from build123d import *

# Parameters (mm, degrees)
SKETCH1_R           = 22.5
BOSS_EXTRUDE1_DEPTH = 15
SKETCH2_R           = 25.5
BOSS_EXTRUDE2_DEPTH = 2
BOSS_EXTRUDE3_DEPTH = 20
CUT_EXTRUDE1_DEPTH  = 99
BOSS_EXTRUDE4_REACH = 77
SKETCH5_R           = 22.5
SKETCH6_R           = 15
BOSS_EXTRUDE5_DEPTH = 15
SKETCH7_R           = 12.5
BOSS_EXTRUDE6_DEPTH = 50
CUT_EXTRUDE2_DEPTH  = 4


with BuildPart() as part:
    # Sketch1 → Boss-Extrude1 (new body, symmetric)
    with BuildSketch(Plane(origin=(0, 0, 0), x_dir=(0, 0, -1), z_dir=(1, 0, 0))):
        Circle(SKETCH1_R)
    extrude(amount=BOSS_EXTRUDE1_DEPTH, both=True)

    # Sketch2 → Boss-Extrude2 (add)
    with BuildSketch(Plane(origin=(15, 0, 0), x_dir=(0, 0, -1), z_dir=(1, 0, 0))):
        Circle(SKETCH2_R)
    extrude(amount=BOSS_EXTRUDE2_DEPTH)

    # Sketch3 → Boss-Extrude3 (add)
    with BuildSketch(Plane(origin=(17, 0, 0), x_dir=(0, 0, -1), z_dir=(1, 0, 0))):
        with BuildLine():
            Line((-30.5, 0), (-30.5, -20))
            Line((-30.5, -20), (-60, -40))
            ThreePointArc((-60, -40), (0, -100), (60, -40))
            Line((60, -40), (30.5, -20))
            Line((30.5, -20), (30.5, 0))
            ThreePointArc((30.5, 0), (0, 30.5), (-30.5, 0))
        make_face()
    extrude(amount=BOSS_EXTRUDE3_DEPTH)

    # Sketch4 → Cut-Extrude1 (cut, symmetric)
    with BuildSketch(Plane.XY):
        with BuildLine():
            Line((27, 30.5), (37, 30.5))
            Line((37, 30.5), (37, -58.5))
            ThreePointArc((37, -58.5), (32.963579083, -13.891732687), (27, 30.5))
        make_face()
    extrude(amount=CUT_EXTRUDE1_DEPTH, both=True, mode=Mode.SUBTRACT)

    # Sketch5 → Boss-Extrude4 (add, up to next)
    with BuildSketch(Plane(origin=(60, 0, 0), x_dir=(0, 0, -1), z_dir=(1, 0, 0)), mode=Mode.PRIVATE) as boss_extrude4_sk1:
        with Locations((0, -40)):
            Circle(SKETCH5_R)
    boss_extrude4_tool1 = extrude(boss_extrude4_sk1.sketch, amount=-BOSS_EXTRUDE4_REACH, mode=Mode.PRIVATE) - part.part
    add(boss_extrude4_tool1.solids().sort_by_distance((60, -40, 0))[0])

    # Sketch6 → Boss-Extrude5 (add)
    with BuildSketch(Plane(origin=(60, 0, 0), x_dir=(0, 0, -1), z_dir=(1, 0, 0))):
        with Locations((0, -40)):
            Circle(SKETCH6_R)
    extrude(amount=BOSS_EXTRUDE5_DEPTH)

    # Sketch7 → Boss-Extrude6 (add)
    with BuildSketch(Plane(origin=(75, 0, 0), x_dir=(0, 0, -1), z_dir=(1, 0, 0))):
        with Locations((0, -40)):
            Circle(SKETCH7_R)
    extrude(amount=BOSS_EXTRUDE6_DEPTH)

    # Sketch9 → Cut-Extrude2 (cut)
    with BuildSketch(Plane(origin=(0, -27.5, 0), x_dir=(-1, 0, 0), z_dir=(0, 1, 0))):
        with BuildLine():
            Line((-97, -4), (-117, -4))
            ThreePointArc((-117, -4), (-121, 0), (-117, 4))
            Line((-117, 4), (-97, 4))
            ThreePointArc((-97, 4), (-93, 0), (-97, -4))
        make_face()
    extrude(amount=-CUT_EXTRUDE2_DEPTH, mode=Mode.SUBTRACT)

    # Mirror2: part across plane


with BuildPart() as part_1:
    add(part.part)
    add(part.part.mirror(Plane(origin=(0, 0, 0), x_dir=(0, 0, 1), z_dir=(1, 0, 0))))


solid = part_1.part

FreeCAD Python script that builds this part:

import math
import FreeCAD as App
import Part
import Sketcher

V = App.Vector

doc = App.newDocument("Part")
params = doc.addObject("Spreadsheet::Sheet", "Params")
for row, (alias, value) in enumerate([
    ("sketch1_diameter", "45 mm"),
    ("pad1_length", "30 mm"),
    ("sketch2_diameter", "51 mm"),
    ("pad2_length", "2 mm"),
    ("sketch3_radius", "60 mm"),
    ("sketch3_radius2", "30.5 mm"),
    ("sketch3_width", "20 mm"),
    ("pad3_length", "20 mm"),
    ("sketch4_radius", "1034.5 mm"),
    ("sketch4_width", "10 mm"),
    ("sketch4_height", "89 mm"),
    ("pocket1_length", "198 mm"),
    ("sketch5_diameter", "45 mm"),
    ("sketch6_diameter", "30 mm"),
    ("pad5_length", "15 mm"),
    ("sketch7_diameter", "25 mm"),
    ("pad6_length", "50 mm"),
    ("sketch8_radius", "4 mm"),
    ("sketch8_width", "20 mm"),
    ("pocket2_length", "4 mm"),
], start=1):
    params.set(f"A{row}", alias)
    params.set(f"B{row}", "=" + value)
    params.setAlias(f"B{row}", alias)

body = doc.addObject("PartDesign::Body", "Body")

sketch1 = doc.addObject("Sketcher::SketchObject", "Sketch")
body.addObject(sketch1)
sketch1.AttachmentSupport = (doc.YZ_Plane, [""])
sketch1.MapMode = "FlatFace"
sketch1.addGeometry(Part.Circle(V(0, 0, 0), V(0, 0, 1), 22.5), False)
sketch1.addConstraint(Sketcher.Constraint("Coincident", 0, 3, -1, 1))
sketch1.addConstraint(Sketcher.Constraint("Diameter", 0, 45.0))
sketch1.setExpression("Constraints[1]", "Params.sketch1_diameter")
pad1 = doc.addObject("PartDesign::Pad", "Pad")
body.addObject(pad1)
pad1.Profile = sketch1
pad1.setExpression("Length", "Params.pad1_length")
pad1.Midplane = True

sketch2 = doc.addObject("Sketcher::SketchObject", "Sketch001")
body.addObject(sketch2)
sketch2.AttachmentSupport = (doc.YZ_Plane, [""])
sketch2.MapMode = "FlatFace"
sketch2.AttachmentOffset = App.Placement(V(0, 0, 15), App.Rotation())
sketch2.addGeometry(Part.Circle(V(0, 0, 0), V(0, 0, 1), 25.5), False)
sketch2.addConstraint(Sketcher.Constraint("Coincident", 0, 3, -1, 1))
sketch2.addConstraint(Sketcher.Constraint("Diameter", 0, 51.0))
sketch2.setExpression("Constraints[1]", "Params.sketch2_diameter")
pad2 = doc.addObject("PartDesign::Pad", "Pad001")
body.addObject(pad2)
pad2.Profile = sketch2
pad2.setExpression("Length", "Params.pad2_length")

sketch3 = doc.addObject("Sketcher::SketchObject", "Sketch002")
body.addObject(sketch3)
sketch3.AttachmentSupport = (doc.YZ_Plane, [""])
sketch3.MapMode = "FlatFace"
sketch3.AttachmentOffset = App.Placement(V(0, 0, 17), App.Rotation())
sketch3.addGeometry(Part.LineSegment(V(0, 30.5, 0), V(-20, 30.5, 0)), False)
sketch3.addGeometry(Part.LineSegment(V(-20, 30.5, 0), V(-40, 60, 0)), False)
sketch3.addGeometry(Part.ArcOfCircle(Part.Circle(V(-40, 0, 0), V(0, 0, 1), 60), math.radians(90), math.radians(270)), False)
sketch3.addGeometry(Part.LineSegment(V(-40, -60, 0), V(-20, -30.5, 0)), False)
sketch3.addGeometry(Part.LineSegment(V(-20, -30.5, 0), V(0, -30.5, 0)), False)
sketch3.addGeometry(Part.ArcOfCircle(Part.Circle(V(0, 0, 0), V(0, 0, 1), 30.5), math.radians(-90), math.radians(90)), False)
sketch3.addConstraint(Sketcher.Constraint("Coincident", 0, 2, 1, 1))
sketch3.addConstraint(Sketcher.Constraint("Coincident", 1, 2, 2, 1))
sketch3.addConstraint(Sketcher.Constraint("Coincident", 2, 2, 3, 1))
sketch3.addConstraint(Sketcher.Constraint("Coincident", 3, 2, 4, 1))
sketch3.addConstraint(Sketcher.Constraint("Tangent", 4, 2, 5, 1))
sketch3.addConstraint(Sketcher.Constraint("Tangent", 5, 2, 0, 1))
sketch3.addConstraint(Sketcher.Constraint("Horizontal", 0))
sketch3.addConstraint(Sketcher.Constraint("Horizontal", 4))
sketch3.addConstraint(Sketcher.Constraint("Coincident", 5, 3, -1, 1))
sketch3.addConstraint(Sketcher.Constraint("Symmetric", 1, 2, 2, 2, -1))
sketch3.addConstraint(Sketcher.Constraint("Vertical", 2, 3, 1, 2))
sketch3.addConstraint(Sketcher.Constraint("Vertical", 0, 2, 3, 2))
sketch3.addConstraint(Sketcher.Constraint("Radius", 2, 60.0))
sketch3.addConstraint(Sketcher.Constraint("Radius", 5, 30.5))
sketch3.addConstraint(Sketcher.Constraint("DistanceX", 0, 2, 0, 1, 20.0))
sketch3.addConstraint(Sketcher.Constraint("DistanceX", 2, 3, -1, 1, 40.0))
sketch3.setExpression("Constraints[12]", "Params.sketch3_radius")
sketch3.setExpression("Constraints[13]", "Params.sketch3_radius2")
sketch3.setExpression("Constraints[14]", "Params.sketch3_width")
pad3 = doc.addObject("PartDesign::Pad", "Pad002")
body.addObject(pad3)
pad3.Profile = sketch3
pad3.setExpression("Length", "Params.pad3_length")

sketch4 = doc.addObject("Sketcher::SketchObject", "Sketch003")
body.addObject(sketch4)
sketch4.AttachmentSupport = (doc.XY_Plane, [""])
sketch4.MapMode = "FlatFace"
sketch4.addGeometry(Part.LineSegment(V(37, 30.5, 0), V(27, 30.5, 0)), False)
sketch4.addGeometry(Part.ArcOfCircle(Part.Circle(V(-995.067498, -129.400842, 0), V(0, 0, 1), 1034.5), math.radians(3.929924), math.radians(8.891756)), False)
sketch4.addGeometry(Part.LineSegment(V(37, -58.5, 0), V(37, 30.5, 0)), False)
sketch4.addConstraint(Sketcher.Constraint("Coincident", 0, 2, 1, 2))
sketch4.addConstraint(Sketcher.Constraint("Coincident", 1, 1, 2, 1))
sketch4.addConstraint(Sketcher.Constraint("Coincident", 2, 2, 0, 1))
sketch4.addConstraint(Sketcher.Constraint("Horizontal", 0))
sketch4.addConstraint(Sketcher.Constraint("Vertical", 2))
sketch4.addConstraint(Sketcher.Constraint("Radius", 1, 1034.5))
sketch4.addConstraint(Sketcher.Constraint("DistanceX", 0, 2, 0, 1, 10.0))
sketch4.addConstraint(Sketcher.Constraint("DistanceY", 2, 1, 2, 2, 89.0))
sketch4.addConstraint(Sketcher.Constraint("DistanceX", -1, 1, 0, 2, 27.0))
sketch4.addConstraint(Sketcher.Constraint("DistanceY", -1, 1, 0, 2, 30.5))
sketch4.setExpression("Constraints[5]", "Params.sketch4_radius")
sketch4.setExpression("Constraints[6]", "Params.sketch4_width")
sketch4.setExpression("Constraints[7]", "Params.sketch4_height")
pocket1 = doc.addObject("PartDesign::Pocket", "Pocket")
body.addObject(pocket1)
pocket1.Profile = sketch4
pocket1.setExpression("Length", "Params.pocket1_length")
pocket1.Midplane = True

sketch5 = doc.addObject("Sketcher::SketchObject", "Sketch004")
body.addObject(sketch5)
sketch5.AttachmentSupport = (doc.YZ_Plane, [""])
sketch5.MapMode = "FlatFace"
sketch5.AttachmentOffset = App.Placement(V(0, 0, 60), App.Rotation())
sketch5.addGeometry(Part.Circle(V(-40, 0, 0), V(0, 0, 1), 22.5), False)
sketch5.addConstraint(Sketcher.Constraint("PointOnObject", 0, 3, -1))
sketch5.addConstraint(Sketcher.Constraint("Diameter", 0, 45.0))
sketch5.addConstraint(Sketcher.Constraint("DistanceX", 0, 3, -1, 1, 40.0))
sketch5.setExpression("Constraints[1]", "Params.sketch5_diameter")
pad4 = doc.addObject("PartDesign::Pad", "Pad003")
body.addObject(pad4)
pad4.Profile = sketch5
pad4.Type = "UpToFirst"
pad4.Reversed = True

sketch6 = doc.addObject("Sketcher::SketchObject", "Sketch005")
body.addObject(sketch6)
sketch6.AttachmentSupport = (doc.YZ_Plane, [""])
sketch6.MapMode = "FlatFace"
sketch6.AttachmentOffset = App.Placement(V(0, 0, 60), App.Rotation())
sketch6.addGeometry(Part.Circle(V(-40, 0, 0), V(0, 0, 1), 15), False)
sketch6.addConstraint(Sketcher.Constraint("PointOnObject", 0, 3, -1))
sketch6.addConstraint(Sketcher.Constraint("Diameter", 0, 30.0))
sketch6.addConstraint(Sketcher.Constraint("DistanceX", 0, 3, -1, 1, 40.0))
sketch6.setExpression("Constraints[1]", "Params.sketch6_diameter")
pad5 = doc.addObject("PartDesign::Pad", "Pad004")
body.addObject(pad5)
pad5.Profile = sketch6
pad5.setExpression("Length", "Params.pad5_length")

sketch7 = doc.addObject("Sketcher::SketchObject", "Sketch006")
body.addObject(sketch7)
sketch7.AttachmentSupport = (doc.YZ_Plane, [""])
sketch7.MapMode = "FlatFace"
sketch7.AttachmentOffset = App.Placement(V(0, 0, 75), App.Rotation())
sketch7.addGeometry(Part.Circle(V(-40, 0, 0), V(0, 0, 1), 12.5), False)
sketch7.addConstraint(Sketcher.Constraint("PointOnObject", 0, 3, -1))
sketch7.addConstraint(Sketcher.Constraint("Diameter", 0, 25.0))
sketch7.addConstraint(Sketcher.Constraint("DistanceX", 0, 3, -1, 1, 40.0))
sketch7.setExpression("Constraints[1]", "Params.sketch7_diameter")
pad6 = doc.addObject("PartDesign::Pad", "Pad005")
body.addObject(pad6)
pad6.Profile = sketch7
pad6.setExpression("Length", "Params.pad6_length")

sketch8 = doc.addObject("Sketcher::SketchObject", "Sketch007")
body.addObject(sketch8)
sketch8.AttachmentSupport = (doc.XZ_Plane, [""])
sketch8.MapMode = "FlatFace"
sketch8.AttachmentOffset = App.Placement(V(0, 0, 27.5), App.Rotation())
sketch8.addGeometry(Part.LineSegment(V(117, -4, 0), V(97, -4, 0)), False)
sketch8.addGeometry(Part.ArcOfCircle(Part.Circle(V(97, 0, 0), V(0, 0, 1), 4), math.radians(90), math.radians(270)), False)
sketch8.addGeometry(Part.LineSegment(V(97, 4, 0), V(117, 4, 0)), False)
sketch8.addGeometry(Part.ArcOfCircle(Part.Circle(V(117, 0, 0), V(0, 0, 1), 4), math.radians(-90), math.radians(90)), False)
sketch8.addConstraint(Sketcher.Constraint("Tangent", 0, 2, 1, 2))
sketch8.addConstraint(Sketcher.Constraint("Tangent", 1, 1, 2, 1))
sketch8.addConstraint(Sketcher.Constraint("Tangent", 2, 2, 3, 2))
sketch8.addConstraint(Sketcher.Constraint("Tangent", 3, 1, 0, 1))
sketch8.addConstraint(Sketcher.Constraint("Horizontal", 0))
sketch8.addConstraint(Sketcher.Constraint("Horizontal", 2))
sketch8.addConstraint(Sketcher.Constraint("PointOnObject", 1, 3, -1))
sketch8.addConstraint(Sketcher.Constraint("Radius", 1, 4.0))
sketch8.addConstraint(Sketcher.Constraint("DistanceX", 0, 2, 0, 1, 20.0))
sketch8.addConstraint(Sketcher.Constraint("DistanceX", -1, 1, 1, 3, 97.0))
sketch8.setExpression("Constraints[7]", "Params.sketch8_radius")
sketch8.setExpression("Constraints[8]", "Params.sketch8_width")
pocket2 = doc.addObject("PartDesign::Pocket", "Pocket001")
body.addObject(pocket2)
pocket2.Profile = sketch8
pocket2.setExpression("Length", "Params.pocket2_length")
pocket2.Reversed = True
body2 = doc.addObject("PartDesign::Body", "Body001")
doc.recompute()

body2.BaseFeature = body
doc.recompute()

mirroring = doc.addObject("Part::Mirroring", "Mirroring")
mirroring.Source = body
mirroring.Base = V(0, 0, 0)
mirroring.Normal = V(1, 0, 0)
body3 = doc.addObject("PartDesign::Body", "Body002")
body3.BaseFeature = mirroring
boolean = doc.addObject("PartDesign::Boolean", "Boolean")
body2.addObject(boolean)
boolean.Type = "Fuse"
boolean.addObjects([body3])
doc.recompute()
mirroring.Visibility = False

doc.recompute()
